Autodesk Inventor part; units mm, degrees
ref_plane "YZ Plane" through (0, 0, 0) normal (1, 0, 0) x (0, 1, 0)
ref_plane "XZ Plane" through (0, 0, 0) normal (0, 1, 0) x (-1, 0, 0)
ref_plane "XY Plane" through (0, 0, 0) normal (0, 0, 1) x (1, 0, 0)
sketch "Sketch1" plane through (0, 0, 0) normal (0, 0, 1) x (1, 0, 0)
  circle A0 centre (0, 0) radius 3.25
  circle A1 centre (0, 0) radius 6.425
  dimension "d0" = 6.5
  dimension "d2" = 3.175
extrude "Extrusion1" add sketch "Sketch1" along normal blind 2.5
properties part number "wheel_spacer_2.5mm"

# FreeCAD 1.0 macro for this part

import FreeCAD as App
import Part
import Sketcher
from FreeCAD import Vector
Q = App.Units.Quantity

doc = App.newDocument("Part")
params = doc.addObject("Spreadsheet::Sheet", "Params")
for row, (alias, value) in enumerate([
    ("sketch1_diameter", "6.5 mm"),
    ("sketch1_diameter2", "12.85 mm"),
    ("pad1_length", "2.5 mm"),
], start=1):
    params.set(f"A{row}", alias)
    params.set(f"B{row}", "=" + value)
    params.setAlias(f"B{row}", alias)

body = doc.addObject("PartDesign::Body", "Body")

# Sketch on XY plane
sketch1 = doc.addObject("Sketcher::SketchObject", "Sketch")
body.addObject(sketch1)
sketch1.AttachmentSupport = (doc.XY_Plane, [""])
sketch1.MapMode = "FlatFace"
sketch1.addGeometry(Part.Circle(Vector(0, 0, 0), Vector(0, 0, 1), 6.4), False)
sketch1.addGeometry(Part.Circle(Vector(0, 0, 0), Vector(0, 0, 1), 3.2), False)
sketch1.addConstraint(Sketcher.Constraint("Coincident", 0, 3, -1, 1))
sketch1.addConstraint(Sketcher.Constraint("Coincident", 1, 3, -1, 1))
sketch1.addConstraint(Sketcher.Constraint("Diameter", 1, Q("6.5 mm")))
sketch1.addConstraint(Sketcher.Constraint("Diameter", 0, Q("12.85 mm")))
sketch1.setExpression("Constraints[2]", "Params.sketch1_diameter")
sketch1.setExpression("Constraints[3]", "Params.sketch1_diameter2")
pad1 = doc.addObject("PartDesign::Pad", "Pad")
body.addObject(pad1)
pad1.Profile = sketch1
pad1.setExpression("Length", "Params.pad1_length")

doc.recompute()
